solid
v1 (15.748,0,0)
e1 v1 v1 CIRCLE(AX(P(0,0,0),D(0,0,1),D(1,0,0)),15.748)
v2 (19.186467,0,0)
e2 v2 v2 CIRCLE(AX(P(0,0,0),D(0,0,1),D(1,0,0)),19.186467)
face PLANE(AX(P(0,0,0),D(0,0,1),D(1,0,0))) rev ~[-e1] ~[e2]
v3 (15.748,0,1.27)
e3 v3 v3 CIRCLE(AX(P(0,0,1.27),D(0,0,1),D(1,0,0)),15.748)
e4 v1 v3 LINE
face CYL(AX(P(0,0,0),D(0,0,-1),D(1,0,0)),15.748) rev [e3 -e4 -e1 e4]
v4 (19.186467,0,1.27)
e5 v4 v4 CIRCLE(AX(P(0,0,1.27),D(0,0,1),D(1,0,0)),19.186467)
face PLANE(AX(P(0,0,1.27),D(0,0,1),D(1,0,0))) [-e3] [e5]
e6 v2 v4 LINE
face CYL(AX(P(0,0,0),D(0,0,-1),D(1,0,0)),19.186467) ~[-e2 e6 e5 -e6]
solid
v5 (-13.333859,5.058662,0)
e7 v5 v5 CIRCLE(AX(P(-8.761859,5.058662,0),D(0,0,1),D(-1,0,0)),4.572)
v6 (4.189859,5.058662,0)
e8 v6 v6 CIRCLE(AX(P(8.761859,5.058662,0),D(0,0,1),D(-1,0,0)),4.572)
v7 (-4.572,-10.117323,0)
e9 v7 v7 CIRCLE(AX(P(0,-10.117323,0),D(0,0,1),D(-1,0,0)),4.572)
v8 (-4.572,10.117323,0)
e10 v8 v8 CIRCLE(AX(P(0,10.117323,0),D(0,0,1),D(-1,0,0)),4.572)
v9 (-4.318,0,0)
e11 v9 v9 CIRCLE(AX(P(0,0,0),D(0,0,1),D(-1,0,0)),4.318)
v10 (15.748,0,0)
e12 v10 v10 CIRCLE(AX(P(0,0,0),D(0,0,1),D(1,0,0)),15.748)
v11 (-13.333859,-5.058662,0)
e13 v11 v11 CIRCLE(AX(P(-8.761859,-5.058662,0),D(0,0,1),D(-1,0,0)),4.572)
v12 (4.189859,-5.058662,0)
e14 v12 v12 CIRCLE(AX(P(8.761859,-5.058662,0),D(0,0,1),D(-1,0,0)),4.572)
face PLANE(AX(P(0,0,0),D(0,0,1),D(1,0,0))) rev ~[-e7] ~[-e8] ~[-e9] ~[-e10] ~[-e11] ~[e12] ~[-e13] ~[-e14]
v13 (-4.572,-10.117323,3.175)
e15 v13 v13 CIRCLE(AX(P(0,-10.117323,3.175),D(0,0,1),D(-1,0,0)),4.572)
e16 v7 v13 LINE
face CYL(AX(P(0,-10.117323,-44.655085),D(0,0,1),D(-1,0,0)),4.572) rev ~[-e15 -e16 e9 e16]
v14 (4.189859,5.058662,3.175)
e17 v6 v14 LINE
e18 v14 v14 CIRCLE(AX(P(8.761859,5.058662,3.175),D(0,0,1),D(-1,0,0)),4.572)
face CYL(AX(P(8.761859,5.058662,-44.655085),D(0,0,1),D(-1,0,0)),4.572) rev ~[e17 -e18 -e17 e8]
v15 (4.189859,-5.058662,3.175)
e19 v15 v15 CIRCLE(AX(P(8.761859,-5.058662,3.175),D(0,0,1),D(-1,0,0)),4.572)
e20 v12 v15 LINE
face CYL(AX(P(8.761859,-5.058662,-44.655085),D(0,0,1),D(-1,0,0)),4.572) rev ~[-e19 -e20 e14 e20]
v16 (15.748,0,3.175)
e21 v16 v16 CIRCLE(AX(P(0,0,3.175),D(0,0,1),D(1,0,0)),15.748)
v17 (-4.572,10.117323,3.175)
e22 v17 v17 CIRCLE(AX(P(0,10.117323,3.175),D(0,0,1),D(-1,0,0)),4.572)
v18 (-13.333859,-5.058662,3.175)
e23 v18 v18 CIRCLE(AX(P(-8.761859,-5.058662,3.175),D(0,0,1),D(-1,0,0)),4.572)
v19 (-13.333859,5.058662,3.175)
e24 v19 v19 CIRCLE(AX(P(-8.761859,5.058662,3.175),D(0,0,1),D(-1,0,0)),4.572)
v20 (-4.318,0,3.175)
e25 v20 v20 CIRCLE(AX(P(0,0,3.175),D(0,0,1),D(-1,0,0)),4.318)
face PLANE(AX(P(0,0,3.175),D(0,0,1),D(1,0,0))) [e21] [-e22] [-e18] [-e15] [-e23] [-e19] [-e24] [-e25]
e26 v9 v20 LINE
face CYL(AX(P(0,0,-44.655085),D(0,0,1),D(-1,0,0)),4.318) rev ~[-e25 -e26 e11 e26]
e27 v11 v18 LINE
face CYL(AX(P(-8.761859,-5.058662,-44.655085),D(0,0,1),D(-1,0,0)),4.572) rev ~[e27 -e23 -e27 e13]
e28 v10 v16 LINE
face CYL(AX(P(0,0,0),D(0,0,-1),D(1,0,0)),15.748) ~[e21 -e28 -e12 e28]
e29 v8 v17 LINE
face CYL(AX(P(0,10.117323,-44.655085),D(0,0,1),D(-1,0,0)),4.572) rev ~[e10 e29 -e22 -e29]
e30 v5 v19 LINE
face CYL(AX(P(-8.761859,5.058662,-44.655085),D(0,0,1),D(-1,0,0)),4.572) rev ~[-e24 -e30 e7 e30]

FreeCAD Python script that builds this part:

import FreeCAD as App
import Part
import Sketcher

V = App.Vector
Q = App.Units.Quantity

doc = App.newDocument("Part")
body = doc.addObject("PartDesign::Body", "Body")

# Sketch on XY plane
sketch1 = body.newObject("Sketcher::SketchObject", "Sketch")
sketch1.AttachmentSupport = (doc.getObject("XY_Plane"), [""])
sketch1.MapMode = "FlatFace"
sketch1.addGeometry(Part.Circle(V(0, 0, 0), V(0, 0, 1), 16), False)
sketch1.addConstraint(Sketcher.Constraint("Coincident", 0, 3, -1, 1))
sketch1.addConstraint(Sketcher.Constraint("Diameter", 0, Q("1.24 in")))
pad1 = body.newObject("PartDesign::Pad", "Pad")
pad1.Profile = sketch1
pad1.Length = Q("0.125 in")

# Sketch on XY plane
sketch2 = body.newObject("Sketcher::SketchObject", "Sketch001")
sketch2.AttachmentSupport = (doc.getObject("XY_Plane"), [""])
sketch2.MapMode = "FlatFace"
sketch2.addGeometry(Part.Circle(V(0, 0, 0), V(0, 0, 1), 4.3), False)
sketch2.addConstraint(Sketcher.Constraint("Coincident", 0, 3, -1, 1))
sketch2.addConstraint(Sketcher.Constraint("Diameter", 0, Q("0.34 in")))
doc.recompute()
hole = body.newObject("PartDesign::Hole", "Hole")
hole.Profile = sketch2
hole.ThreadType = "None"
hole.Diameter = Q("0.34 in")
hole.DepthType = "ThroughAll"
hole.Reversed = True

# Sketch on XY plane
sketch3 = body.newObject("Sketcher::SketchObject", "Sketch002")
sketch3.AttachmentSupport = (doc.getObject("XY_Plane"), [""])
sketch3.MapMode = "FlatFace"
sketch3.addGeometry(Part.Circle(V(0, -10.1, 0), V(0, 0, 1), 4.6), False)
sketch3.addGeometry(Part.Circle(V(8.8, -5.1, 0), V(0, 0, 1), 4.6), False)
sketch3.addGeometry(Part.Circle(V(8.8, 5.1, 0), V(0, 0, 1), 4.6), False)
sketch3.addGeometry(Part.Circle(V(0, 10.1, 0), V(0, 0, 1), 4.6), False)
sketch3.addGeometry(Part.Circle(V(-8.8, 5.1, 0), V(0, 0, 1), 4.6), False)
sketch3.addGeometry(Part.Circle(V(-8.8, -5.1, 0), V(0, 0, 1), 4.6), False)
sketch3.addConstraint(Sketcher.Constraint("Equal", 0, 1))
sketch3.addConstraint(Sketcher.Constraint("Equal", 1, 2))
sketch3.addConstraint(Sketcher.Constraint("Equal", 2, 3))
sketch3.addConstraint(Sketcher.Constraint("Equal", 3, 4))
sketch3.addConstraint(Sketcher.Constraint("Equal", 4, 5))
sketch3.addConstraint(Sketcher.Constraint("Symmetric", 0, 3, 3, 3, -1, 1))
sketch3.addConstraint(Sketcher.Constraint("Symmetric", 1, 3, 4, 3, -1, 1))
sketch3.addConstraint(Sketcher.Constraint("Symmetric", 2, 3, 5, 3, -1, 1))
sketch3.addConstraint(Sketcher.Constraint("Symmetric", 2, 3, 4, 3, -2))
sketch3.addConstraint(Sketcher.Constraint("PointOnObject", 0, 3, -2))
sketch3.addConstraint(Sketcher.Constraint("Diameter", 0, Q("0.36 in")))
sketch3.addConstraint(Sketcher.Constraint("DistanceX", -1, 1, 1, 3, 8.761859))
sketch3.addConstraint(Sketcher.Constraint("DistanceY", 0, 3, 1, 3, 5.058661))
sketch3.addConstraint(Sketcher.Constraint("DistanceY", 0, 3, -1, 1, 10.117323))
doc.recompute()
hole2 = body.newObject("PartDesign::Hole", "Hole001")
hole2.Profile = sketch3
hole2.ThreadType = "None"
hole2.Diameter = Q("0.36 in")
hole2.DepthType = "ThroughAll"
hole2.Reversed = True
body2 = doc.addObject("PartDesign::Body", "Body001")

# Sketch on XY plane
sketch4 = body2.newObject("Sketcher::SketchObject", "Sketch003")
sketch4.AttachmentSupport = (doc.getObject("XY_Plane001"), [""])
sketch4.MapMode = "FlatFace"
sketch4.addGeometry(Part.Circle(V(0, 0, 0), V(0, 0, 1), 19), False)
sketch4.addGeometry(Part.Circle(V(0, 0, 0), V(0, 0, 1), 16), False)
sketch4.addConstraint(Sketcher.Constraint("Coincident", 0, 3, -1, 1))
sketch4.addConstraint(Sketcher.Constraint("Coincident", 1, 3, -1, 1))
sketch4.addConstraint(Sketcher.Constraint("Diameter", 1, Q("1.24 in")))
sketch4.addConstraint(Sketcher.Constraint("Diameter", 0, 38.372934))
pad2 = body2.newObject("PartDesign::Pad", "Pad001")
pad2.Profile = sketch4
pad2.Length = Q("0.05 in")

doc.recompute()
